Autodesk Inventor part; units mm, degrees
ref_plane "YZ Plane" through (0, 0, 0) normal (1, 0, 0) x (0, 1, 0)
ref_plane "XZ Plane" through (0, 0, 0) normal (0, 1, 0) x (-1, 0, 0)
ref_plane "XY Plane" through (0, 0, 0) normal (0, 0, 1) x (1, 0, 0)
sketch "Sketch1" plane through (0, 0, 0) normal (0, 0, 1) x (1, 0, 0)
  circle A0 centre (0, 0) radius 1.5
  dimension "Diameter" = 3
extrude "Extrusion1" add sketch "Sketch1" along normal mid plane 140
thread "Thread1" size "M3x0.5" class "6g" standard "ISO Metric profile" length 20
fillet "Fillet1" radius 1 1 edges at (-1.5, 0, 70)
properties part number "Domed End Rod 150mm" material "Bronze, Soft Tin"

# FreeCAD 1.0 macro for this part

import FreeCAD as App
import Part
import Sketcher
from FreeCAD import Vector


def edges_at(feature, points):
    """Names of the edges that pass closest to the given points."""
    edges = feature.Shape.Edges
    near = lambda p: min(range(len(edges)), key=lambda i: edges[i].distToShape(Part.Vertex(*p))[0])
    return sorted({f"Edge{near(p) + 1}" for p in points})

doc = App.newDocument("Part")
params = doc.addObject("Spreadsheet::Sheet", "Params")
for row, (alias, value) in enumerate([
    ("sketch1_diameter", "3 mm"),
    ("pad1_length", "140 mm"),
    ("fillet_radius", "1 mm"),
], start=1):
    params.set(f"A{row}", alias)
    params.set(f"B{row}", "=" + value)
    params.setAlias(f"B{row}", alias)

body = doc.addObject("PartDesign::Body", "Body")

# Sketch on XY plane
sketch1 = body.newObject("Sketcher::SketchObject", "Sketch")
sketch1.AttachmentSupport = (doc.getObject("XY_Plane"), [""])
sketch1.MapMode = "FlatFace"
sketch1.addGeometry(Part.Circle(Vector(0, 0, 0), Vector(0, 0, 1), 1.5), False)
sketch1.addConstraint([
    Sketcher.Constraint("Coincident", 0, 3, -1, 1),
    Sketcher.Constraint("Diameter", 0, 3.0),
])
sketch1.setExpression("Constraints[1]", "Params.sketch1_diameter")
pad1 = body.newObject("PartDesign::Pad", "Pad")
pad1.Profile = sketch1
pad1.setExpression("Length", "Params.pad1_length")
pad1.Midplane = True
doc.recompute()

fillet = body.newObject("PartDesign::Fillet", "Fillet")
fillet.Base = (pad1, edges_at(pad1, [(-1.5, 0, 70)]))
fillet.setExpression("Radius", "Params.fillet_radius")

doc.recompute()
